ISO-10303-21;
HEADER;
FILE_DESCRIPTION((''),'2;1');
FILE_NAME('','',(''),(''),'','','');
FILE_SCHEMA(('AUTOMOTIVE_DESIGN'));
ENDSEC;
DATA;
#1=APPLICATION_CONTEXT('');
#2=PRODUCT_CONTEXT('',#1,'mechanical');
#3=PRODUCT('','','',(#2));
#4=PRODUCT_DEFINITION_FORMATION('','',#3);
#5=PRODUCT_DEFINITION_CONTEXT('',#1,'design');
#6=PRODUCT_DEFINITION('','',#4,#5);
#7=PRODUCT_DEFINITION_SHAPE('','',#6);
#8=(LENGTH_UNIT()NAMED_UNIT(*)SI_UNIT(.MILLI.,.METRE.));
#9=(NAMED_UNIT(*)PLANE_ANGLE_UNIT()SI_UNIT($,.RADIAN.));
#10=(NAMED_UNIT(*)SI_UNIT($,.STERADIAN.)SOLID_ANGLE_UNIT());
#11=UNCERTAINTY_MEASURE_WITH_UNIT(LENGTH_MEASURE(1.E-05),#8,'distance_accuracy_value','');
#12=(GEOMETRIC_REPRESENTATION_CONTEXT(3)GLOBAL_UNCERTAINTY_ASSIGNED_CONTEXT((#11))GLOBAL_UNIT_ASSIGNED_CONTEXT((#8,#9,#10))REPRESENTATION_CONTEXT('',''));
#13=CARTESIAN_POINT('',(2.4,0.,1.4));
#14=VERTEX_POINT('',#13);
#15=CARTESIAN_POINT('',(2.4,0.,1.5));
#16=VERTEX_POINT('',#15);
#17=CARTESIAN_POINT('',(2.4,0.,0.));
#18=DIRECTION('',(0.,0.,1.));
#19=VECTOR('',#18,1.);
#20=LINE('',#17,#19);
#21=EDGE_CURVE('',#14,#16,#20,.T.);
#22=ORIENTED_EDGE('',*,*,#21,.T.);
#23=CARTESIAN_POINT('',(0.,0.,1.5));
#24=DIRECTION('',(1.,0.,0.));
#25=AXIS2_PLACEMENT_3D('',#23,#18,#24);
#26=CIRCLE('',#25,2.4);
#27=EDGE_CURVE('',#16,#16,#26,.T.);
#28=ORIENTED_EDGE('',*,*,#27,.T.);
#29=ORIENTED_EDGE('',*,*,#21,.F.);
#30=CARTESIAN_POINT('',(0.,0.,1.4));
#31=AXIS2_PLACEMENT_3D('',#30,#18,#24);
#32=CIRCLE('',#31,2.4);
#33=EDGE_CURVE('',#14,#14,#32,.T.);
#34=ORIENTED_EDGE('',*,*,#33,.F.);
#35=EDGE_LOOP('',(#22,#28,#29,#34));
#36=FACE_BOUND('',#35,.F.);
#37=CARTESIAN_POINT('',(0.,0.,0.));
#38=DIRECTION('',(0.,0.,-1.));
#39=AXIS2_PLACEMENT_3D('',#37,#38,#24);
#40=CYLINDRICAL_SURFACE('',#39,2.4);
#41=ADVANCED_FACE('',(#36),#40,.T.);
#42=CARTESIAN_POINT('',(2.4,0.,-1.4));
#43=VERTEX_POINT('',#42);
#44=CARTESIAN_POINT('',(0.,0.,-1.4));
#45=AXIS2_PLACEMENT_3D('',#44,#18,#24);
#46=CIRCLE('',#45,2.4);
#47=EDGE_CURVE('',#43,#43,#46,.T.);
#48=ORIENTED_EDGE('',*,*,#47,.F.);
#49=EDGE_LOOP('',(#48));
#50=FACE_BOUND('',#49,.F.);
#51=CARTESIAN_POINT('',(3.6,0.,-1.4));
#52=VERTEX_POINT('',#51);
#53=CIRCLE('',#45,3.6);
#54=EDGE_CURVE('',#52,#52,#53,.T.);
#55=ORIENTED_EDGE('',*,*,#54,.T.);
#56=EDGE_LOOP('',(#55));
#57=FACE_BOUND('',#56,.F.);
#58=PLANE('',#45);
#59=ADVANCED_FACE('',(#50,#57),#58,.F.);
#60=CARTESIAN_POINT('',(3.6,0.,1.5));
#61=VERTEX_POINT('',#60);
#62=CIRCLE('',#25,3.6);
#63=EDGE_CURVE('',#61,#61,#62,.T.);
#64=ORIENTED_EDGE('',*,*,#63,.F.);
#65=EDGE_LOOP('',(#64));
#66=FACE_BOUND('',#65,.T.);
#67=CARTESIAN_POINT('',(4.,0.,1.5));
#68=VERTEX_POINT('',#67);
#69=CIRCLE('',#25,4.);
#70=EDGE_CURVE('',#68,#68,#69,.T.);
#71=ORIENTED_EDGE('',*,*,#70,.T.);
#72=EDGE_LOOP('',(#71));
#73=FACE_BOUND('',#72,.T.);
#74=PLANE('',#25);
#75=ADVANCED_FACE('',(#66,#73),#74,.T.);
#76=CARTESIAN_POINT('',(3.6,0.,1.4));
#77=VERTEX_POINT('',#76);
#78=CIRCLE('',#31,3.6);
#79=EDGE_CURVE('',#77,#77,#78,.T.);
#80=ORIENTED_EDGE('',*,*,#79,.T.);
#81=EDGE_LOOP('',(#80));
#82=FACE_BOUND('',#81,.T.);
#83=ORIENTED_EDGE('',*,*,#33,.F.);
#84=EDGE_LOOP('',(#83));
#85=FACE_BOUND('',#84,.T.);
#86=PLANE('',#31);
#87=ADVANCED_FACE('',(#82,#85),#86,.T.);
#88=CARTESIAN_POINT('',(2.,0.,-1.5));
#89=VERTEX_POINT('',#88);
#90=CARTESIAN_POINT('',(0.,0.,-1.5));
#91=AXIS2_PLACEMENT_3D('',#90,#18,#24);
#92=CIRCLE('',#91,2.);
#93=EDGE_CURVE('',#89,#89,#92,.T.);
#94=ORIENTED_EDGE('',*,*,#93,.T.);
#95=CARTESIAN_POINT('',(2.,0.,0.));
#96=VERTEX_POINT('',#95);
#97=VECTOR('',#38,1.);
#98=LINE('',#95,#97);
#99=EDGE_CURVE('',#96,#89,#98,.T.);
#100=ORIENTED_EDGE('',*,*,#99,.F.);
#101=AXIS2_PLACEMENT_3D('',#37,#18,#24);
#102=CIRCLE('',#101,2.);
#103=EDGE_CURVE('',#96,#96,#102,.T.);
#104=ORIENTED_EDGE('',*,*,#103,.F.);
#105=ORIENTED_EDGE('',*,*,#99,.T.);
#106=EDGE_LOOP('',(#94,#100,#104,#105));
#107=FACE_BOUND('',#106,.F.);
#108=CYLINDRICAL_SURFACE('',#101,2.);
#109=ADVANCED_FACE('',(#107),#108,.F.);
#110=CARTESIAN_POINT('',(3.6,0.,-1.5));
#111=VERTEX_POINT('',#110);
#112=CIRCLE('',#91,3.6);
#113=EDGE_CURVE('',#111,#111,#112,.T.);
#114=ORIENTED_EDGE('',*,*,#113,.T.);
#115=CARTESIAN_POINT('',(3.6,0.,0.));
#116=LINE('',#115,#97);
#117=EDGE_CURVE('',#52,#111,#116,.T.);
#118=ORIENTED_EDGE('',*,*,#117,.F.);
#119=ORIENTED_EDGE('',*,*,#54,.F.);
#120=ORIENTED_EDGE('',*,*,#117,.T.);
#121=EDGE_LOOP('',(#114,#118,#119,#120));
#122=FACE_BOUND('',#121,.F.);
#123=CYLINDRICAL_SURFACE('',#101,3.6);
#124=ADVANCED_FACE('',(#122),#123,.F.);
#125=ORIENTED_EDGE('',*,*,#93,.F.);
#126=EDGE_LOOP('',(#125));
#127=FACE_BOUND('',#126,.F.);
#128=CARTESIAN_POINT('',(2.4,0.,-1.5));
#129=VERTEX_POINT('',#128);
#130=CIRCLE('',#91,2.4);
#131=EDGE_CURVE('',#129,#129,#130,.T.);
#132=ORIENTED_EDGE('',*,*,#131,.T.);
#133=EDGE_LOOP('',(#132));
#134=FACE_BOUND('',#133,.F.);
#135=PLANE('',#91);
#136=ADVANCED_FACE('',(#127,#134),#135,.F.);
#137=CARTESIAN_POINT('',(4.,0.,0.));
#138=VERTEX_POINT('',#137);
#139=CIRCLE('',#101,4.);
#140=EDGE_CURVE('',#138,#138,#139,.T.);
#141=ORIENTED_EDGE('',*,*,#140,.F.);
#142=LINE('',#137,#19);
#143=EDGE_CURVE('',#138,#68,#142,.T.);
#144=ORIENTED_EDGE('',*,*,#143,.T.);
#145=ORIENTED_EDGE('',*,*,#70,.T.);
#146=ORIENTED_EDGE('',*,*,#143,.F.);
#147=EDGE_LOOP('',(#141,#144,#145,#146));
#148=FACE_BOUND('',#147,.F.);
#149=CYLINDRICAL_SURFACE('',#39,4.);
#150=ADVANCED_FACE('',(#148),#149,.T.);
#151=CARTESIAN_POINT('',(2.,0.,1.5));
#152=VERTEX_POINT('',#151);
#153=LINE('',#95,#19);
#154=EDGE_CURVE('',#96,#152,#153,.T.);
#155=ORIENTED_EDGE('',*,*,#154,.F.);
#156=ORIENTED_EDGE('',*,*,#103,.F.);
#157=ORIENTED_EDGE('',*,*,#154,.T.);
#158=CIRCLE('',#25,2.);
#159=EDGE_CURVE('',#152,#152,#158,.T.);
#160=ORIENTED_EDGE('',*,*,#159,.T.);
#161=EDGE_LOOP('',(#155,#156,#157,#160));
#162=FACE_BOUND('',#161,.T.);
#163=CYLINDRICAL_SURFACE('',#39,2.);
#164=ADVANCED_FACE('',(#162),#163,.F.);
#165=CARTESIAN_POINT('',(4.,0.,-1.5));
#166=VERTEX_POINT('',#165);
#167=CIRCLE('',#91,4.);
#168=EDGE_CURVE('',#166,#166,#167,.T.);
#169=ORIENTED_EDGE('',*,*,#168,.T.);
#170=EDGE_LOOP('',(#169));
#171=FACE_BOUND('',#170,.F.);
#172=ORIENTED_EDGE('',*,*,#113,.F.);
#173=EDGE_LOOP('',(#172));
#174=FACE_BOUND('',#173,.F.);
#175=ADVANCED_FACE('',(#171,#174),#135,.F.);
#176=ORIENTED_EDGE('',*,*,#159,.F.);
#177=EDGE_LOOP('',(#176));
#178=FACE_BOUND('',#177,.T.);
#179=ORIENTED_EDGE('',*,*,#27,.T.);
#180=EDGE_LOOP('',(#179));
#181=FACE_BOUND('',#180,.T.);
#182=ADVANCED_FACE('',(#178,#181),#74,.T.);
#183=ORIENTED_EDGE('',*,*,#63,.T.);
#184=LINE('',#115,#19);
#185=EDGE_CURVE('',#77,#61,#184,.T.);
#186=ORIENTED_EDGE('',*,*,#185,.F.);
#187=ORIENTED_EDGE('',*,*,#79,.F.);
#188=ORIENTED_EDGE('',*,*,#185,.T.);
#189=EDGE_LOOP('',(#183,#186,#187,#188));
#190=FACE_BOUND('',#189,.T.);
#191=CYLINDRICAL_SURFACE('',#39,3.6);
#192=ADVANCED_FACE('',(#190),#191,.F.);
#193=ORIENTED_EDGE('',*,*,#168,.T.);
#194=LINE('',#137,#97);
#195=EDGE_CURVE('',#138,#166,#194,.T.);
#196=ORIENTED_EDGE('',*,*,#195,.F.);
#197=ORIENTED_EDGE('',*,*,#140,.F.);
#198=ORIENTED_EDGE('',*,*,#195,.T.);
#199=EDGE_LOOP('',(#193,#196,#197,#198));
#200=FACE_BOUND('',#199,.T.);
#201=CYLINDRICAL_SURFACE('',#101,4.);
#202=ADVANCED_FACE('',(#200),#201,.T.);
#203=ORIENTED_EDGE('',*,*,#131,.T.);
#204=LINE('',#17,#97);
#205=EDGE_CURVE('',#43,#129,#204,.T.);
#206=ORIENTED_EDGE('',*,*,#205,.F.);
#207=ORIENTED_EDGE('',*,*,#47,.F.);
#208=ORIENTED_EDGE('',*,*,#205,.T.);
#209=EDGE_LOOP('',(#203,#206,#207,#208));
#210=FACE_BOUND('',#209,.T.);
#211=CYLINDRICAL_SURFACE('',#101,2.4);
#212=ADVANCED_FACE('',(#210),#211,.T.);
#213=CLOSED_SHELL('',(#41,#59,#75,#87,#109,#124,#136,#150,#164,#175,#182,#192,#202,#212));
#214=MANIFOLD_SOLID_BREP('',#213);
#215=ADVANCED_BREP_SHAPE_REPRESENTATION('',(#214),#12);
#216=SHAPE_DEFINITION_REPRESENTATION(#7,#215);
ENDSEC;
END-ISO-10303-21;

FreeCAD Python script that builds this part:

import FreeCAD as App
import Part
import Sketcher

V = App.Vector

doc = App.newDocument("Part")
params = doc.addObject("Spreadsheet::Sheet", "Params")
for row, (alias, value) in enumerate([
    ("sketch1_diameter", "7.2 mm"),
    ("sketch1_diameter2", "4.8 mm"),
    ("pad1_length", "2.8 mm"),
    ("sketch2_diameter", "8 mm"),
    ("sketch2_diameter2", "4 mm"),
    ("sketch2_diameter3", "7.2 mm"),
    ("sketch2_diameter4", "4.8 mm"),
    ("pad2_length", "3 mm"),
], start=1):
    params.set(f"A{row}", alias)
    params.set(f"B{row}", "=" + value)
    params.setAlias(f"B{row}", alias)

body = doc.addObject("PartDesign::Body", "Body")

# Sketch on XY plane
sketch1 = body.newObject("Sketcher::SketchObject", "Sketch")
sketch1.AttachmentSupport = (doc.getObject("XY_Plane"), [""])
sketch1.MapMode = "FlatFace"
sketch1.addGeometry([
    Part.Circle(V(0, 0, 0), V(0, 0, 1), 3.6),
    Part.Circle(V(0, 0, 0), V(0, 0, 1), 2.4),
], False)
sketch1.addConstraint([
    Sketcher.Constraint("Coincident", 0, 3, -1, 1),
    Sketcher.Constraint("Coincident", 1, 3, -1, 1),
    Sketcher.Constraint("Diameter", 0, 7.2),
    Sketcher.Constraint("Diameter", 1, 4.8),
])
sketch1.setExpression("Constraints[2]", "Params.sketch1_diameter")
sketch1.setExpression("Constraints[3]", "Params.sketch1_diameter2")
pad1 = body.newObject("PartDesign::Pad", "Pad")
pad1.Profile = sketch1
pad1.setExpression("Length", "Params.pad1_length")
pad1.Midplane = True

# Sketch on XY plane
sketch2 = body.newObject("Sketcher::SketchObject", "Sketch001")
sketch2.AttachmentSupport = (doc.getObject("XY_Plane"), [""])
sketch2.MapMode = "FlatFace"
sketch2.addGeometry([
    Part.Circle(V(0, 0, 0), V(0, 0, 1), 4),
    Part.Circle(V(0, 0, 0), V(0, 0, 1), 3.6),
    Part.Circle(V(0, 0, 0), V(0, 0, 1), 2.4),
    Part.Circle(V(0, 0, 0), V(0, 0, 1), 2),
], False)
sketch2.addConstraint([
    Sketcher.Constraint("Coincident", 0, 3, -1, 1),
    Sketcher.Constraint("Coincident", 1, 3, -1, 1),
    Sketcher.Constraint("Coincident", 2, 3, -1, 1),
    Sketcher.Constraint("Coincident", 3, 3, -1, 1),
    Sketcher.Constraint("Diameter", 0, 8.0),
    Sketcher.Constraint("Diameter", 3, 4.0),
    Sketcher.Constraint("Diameter", 1, 7.2),
    Sketcher.Constraint("Diameter", 2, 4.8),
])
sketch2.setExpression("Constraints[4]", "Params.sketch2_diameter")
sketch2.setExpression("Constraints[5]", "Params.sketch2_diameter2")
sketch2.setExpression("Constraints[6]", "Params.sketch2_diameter3")
sketch2.setExpression("Constraints[7]", "Params.sketch2_diameter4")
pad2 = body.newObject("PartDesign::Pad", "Pad001")
pad2.Profile = sketch2
pad2.setExpression("Length", "Params.pad2_length")
pad2.Midplane = True

doc.recompute()
